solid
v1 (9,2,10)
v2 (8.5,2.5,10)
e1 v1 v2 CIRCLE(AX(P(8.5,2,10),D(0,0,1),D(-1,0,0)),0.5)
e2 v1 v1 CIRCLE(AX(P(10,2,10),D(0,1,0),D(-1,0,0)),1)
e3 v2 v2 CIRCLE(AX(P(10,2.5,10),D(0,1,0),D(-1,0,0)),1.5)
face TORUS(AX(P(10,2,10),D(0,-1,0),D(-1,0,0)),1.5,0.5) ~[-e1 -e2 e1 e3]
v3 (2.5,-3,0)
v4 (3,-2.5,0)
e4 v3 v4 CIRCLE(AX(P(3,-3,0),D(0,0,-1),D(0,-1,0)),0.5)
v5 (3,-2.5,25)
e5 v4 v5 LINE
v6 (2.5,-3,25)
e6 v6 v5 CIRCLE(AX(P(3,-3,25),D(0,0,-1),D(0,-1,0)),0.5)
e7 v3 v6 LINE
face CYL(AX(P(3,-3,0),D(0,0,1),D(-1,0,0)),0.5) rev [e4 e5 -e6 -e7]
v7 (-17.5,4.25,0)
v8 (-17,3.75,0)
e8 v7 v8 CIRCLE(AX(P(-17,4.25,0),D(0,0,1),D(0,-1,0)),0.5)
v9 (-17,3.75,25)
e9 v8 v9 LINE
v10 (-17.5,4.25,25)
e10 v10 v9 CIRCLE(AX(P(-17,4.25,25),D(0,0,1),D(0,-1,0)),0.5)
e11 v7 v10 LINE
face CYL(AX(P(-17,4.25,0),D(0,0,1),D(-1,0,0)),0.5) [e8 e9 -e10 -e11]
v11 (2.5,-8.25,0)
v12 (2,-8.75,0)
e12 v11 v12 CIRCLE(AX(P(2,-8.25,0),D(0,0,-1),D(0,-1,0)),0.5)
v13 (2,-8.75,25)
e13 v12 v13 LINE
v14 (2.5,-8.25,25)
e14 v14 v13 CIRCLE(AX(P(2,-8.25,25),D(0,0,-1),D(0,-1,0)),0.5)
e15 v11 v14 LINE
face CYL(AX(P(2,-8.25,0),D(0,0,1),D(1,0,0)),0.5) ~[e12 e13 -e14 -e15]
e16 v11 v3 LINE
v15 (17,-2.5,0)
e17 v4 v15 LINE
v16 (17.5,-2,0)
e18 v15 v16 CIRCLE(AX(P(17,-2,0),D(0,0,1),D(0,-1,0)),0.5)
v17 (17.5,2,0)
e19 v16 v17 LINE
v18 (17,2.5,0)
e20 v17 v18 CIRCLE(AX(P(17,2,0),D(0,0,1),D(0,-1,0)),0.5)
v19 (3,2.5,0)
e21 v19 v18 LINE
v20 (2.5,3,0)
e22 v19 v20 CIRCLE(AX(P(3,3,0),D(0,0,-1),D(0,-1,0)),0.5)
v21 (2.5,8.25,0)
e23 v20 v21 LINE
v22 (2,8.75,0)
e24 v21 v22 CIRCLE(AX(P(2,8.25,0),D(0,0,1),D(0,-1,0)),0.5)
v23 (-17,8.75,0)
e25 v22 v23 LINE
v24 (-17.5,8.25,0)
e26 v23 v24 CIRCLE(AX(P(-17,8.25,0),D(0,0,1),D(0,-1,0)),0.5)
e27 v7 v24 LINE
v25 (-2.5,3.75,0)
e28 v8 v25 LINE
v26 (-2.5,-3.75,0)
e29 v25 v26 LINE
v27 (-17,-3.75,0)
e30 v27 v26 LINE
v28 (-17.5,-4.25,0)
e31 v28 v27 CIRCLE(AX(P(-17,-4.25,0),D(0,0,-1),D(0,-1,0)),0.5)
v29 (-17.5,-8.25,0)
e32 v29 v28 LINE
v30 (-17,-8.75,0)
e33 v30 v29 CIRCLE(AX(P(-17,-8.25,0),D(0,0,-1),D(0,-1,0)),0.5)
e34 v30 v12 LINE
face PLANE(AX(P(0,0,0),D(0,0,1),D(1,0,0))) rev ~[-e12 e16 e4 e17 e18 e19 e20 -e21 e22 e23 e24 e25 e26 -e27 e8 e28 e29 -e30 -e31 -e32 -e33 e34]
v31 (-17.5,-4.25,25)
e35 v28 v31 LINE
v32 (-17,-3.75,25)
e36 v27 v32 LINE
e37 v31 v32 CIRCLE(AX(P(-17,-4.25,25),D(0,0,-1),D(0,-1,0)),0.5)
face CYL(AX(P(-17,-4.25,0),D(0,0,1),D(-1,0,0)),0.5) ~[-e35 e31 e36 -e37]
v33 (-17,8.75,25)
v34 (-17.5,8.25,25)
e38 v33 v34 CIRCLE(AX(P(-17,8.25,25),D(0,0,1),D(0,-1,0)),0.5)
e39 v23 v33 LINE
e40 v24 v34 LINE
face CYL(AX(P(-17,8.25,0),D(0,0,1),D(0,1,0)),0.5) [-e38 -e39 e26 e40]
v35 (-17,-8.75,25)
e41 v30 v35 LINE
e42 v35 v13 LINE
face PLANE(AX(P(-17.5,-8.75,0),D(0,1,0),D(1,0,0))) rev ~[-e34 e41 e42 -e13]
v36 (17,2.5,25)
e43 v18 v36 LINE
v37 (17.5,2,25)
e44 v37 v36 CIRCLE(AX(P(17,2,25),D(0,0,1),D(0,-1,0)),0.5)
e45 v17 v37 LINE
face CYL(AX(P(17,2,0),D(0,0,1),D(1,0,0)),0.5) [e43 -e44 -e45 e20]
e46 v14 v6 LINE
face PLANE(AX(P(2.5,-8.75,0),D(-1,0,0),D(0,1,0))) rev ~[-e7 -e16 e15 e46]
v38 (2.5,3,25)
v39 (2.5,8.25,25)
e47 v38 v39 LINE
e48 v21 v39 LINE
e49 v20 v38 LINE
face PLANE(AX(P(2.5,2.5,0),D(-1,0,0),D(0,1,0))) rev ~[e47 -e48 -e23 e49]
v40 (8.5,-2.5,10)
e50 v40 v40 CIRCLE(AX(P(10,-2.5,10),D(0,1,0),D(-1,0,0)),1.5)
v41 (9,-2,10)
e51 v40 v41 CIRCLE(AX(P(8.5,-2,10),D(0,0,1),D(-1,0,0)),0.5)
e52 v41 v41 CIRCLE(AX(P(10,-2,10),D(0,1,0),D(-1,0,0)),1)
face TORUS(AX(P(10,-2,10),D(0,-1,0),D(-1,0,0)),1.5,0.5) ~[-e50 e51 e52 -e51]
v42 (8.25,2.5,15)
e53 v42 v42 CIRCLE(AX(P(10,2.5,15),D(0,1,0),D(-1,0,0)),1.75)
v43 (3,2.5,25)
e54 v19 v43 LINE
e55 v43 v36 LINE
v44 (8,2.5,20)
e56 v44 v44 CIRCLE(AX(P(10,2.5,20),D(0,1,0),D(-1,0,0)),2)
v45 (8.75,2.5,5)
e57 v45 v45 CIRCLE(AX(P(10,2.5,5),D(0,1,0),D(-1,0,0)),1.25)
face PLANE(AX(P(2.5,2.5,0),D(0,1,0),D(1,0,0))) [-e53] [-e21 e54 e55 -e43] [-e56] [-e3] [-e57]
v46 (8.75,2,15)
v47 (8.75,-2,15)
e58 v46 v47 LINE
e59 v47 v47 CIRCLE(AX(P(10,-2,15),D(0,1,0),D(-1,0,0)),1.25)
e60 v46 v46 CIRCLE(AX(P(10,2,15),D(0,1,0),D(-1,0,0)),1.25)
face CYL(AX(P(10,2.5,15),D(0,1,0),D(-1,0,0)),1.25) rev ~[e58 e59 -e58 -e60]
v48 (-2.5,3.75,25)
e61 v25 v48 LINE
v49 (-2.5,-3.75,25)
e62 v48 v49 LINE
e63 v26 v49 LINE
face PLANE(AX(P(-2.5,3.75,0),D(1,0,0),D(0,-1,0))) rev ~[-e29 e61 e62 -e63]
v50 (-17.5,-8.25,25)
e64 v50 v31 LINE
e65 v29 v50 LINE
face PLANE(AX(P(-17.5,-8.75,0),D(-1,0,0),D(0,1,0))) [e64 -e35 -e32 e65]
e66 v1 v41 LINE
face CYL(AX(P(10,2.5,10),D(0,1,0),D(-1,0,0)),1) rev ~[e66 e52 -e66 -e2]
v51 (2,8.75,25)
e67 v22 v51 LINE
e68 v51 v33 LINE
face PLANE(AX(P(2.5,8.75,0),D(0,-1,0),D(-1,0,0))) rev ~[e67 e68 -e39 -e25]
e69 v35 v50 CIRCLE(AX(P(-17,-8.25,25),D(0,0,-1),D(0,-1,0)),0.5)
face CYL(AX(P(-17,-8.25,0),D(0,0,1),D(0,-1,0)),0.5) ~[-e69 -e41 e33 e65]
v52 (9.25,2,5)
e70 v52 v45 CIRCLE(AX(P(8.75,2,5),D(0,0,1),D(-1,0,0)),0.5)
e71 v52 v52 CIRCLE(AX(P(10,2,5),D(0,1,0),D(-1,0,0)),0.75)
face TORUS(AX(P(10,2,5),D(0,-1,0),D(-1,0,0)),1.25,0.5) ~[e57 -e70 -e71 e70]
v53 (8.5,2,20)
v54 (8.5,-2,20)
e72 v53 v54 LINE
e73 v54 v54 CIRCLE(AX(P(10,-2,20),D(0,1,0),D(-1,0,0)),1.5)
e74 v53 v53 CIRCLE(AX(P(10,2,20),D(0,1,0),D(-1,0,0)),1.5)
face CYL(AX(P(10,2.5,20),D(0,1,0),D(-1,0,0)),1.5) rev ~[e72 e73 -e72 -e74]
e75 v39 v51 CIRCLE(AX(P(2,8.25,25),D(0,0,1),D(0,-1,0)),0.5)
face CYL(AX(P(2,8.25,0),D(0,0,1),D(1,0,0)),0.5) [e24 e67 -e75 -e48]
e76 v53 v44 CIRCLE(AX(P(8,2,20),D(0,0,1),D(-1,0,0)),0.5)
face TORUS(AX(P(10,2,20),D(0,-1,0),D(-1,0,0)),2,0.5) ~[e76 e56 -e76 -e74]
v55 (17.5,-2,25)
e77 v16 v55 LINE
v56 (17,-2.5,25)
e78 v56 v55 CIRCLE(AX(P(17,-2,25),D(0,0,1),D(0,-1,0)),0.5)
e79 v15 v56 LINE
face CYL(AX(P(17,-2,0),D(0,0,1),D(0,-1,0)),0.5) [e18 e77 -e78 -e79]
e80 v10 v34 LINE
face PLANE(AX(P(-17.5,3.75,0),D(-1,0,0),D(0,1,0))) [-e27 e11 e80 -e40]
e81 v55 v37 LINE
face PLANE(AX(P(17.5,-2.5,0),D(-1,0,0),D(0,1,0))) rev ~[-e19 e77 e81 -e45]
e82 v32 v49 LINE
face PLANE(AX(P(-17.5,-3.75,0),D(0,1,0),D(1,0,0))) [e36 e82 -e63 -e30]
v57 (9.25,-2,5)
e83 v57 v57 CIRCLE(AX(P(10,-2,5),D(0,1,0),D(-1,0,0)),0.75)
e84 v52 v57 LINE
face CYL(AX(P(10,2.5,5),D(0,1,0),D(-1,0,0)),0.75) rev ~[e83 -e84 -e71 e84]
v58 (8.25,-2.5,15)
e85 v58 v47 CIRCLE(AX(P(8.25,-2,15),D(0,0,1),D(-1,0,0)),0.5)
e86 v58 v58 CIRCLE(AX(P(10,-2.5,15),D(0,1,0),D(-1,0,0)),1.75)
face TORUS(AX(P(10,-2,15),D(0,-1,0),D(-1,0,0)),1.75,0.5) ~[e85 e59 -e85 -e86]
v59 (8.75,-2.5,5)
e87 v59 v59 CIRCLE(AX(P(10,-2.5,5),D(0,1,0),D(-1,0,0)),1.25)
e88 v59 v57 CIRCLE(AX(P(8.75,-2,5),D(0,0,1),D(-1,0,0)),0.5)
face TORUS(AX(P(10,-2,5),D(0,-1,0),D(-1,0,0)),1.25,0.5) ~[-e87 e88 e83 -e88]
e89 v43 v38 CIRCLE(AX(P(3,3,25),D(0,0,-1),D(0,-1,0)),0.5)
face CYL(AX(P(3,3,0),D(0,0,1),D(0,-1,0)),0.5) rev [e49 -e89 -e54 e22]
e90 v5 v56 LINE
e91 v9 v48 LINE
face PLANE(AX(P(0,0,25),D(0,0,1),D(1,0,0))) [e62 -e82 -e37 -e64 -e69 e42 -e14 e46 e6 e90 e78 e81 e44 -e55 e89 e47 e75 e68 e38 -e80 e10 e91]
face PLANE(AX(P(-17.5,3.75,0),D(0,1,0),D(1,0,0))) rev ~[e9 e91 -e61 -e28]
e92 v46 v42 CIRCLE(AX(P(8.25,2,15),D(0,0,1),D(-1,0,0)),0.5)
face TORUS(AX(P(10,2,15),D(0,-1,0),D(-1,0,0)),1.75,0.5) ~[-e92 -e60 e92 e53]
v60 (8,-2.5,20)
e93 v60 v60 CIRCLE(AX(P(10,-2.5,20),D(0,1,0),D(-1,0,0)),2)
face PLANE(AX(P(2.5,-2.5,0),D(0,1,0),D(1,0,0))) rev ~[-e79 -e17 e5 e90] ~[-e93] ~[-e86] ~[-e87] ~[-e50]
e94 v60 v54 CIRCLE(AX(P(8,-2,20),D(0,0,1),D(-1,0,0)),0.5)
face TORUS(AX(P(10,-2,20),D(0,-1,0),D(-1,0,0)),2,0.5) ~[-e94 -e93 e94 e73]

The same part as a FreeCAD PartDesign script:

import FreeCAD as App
import Part
import Sketcher


def edges_at(feature, points):
    """Names of the edges that pass closest to the given points."""
    edges = feature.Shape.Edges
    near = lambda p: min(range(len(edges)), key=lambda i: edges[i].distToShape(Part.Vertex(*p))[0])
    return sorted({f"Edge{near(p) + 1}" for p in points})

doc = App.newDocument("Part")
body = doc.addObject("PartDesign::Body", "Body")

# Sketch on XY plane
sketch1 = doc.addObject("Sketcher::SketchObject", "Sketch")
body.addObject(sketch1)
sketch1.AttachmentSupport = (doc.XY_Plane, [""])
sketch1.MapMode = "FlatFace"
sketch1.addGeometry(Part.LineSegment(App.Vector(2, -9, 0), App.Vector(2, -2, 0)), False)
sketch1.addGeometry(Part.LineSegment(App.Vector(2, -2, 0), App.Vector(18, -2, 0)), False)
sketch1.addGeometry(Part.LineSegment(App.Vector(18, -2, 0), App.Vector(18, 2, 0)), False)
sketch1.addGeometry(Part.LineSegment(App.Vector(18, 2, 0), App.Vector(2, 2, 0)), False)
sketch1.addGeometry(Part.LineSegment(App.Vector(2, 2, 0), App.Vector(2, 9, 0)), False)
sketch1.addGeometry(Part.LineSegment(App.Vector(2, 9, 0), App.Vector(-18, 9, 0)), False)
sketch1.addGeometry(Part.LineSegment(App.Vector(-18, 9, 0), App.Vector(-18, 4, 0)), False)
sketch1.addGeometry(Part.LineSegment(App.Vector(-18, 4, 0), App.Vector(-2, 4, 0)), False)
sketch1.addGeometry(Part.LineSegment(App.Vector(-2, 4, 0), App.Vector(-2, -4, 0)), False)
sketch1.addGeometry(Part.LineSegment(App.Vector(-2, -4, 0), App.Vector(-18, -4, 0)), False)
sketch1.addGeometry(Part.LineSegment(App.Vector(-18, -4, 0), App.Vector(-18, -9, 0)), False)
sketch1.addGeometry(Part.LineSegment(App.Vector(-18, -9, 0), App.Vector(2, -9, 0)), False)
sketch1.addConstraint(Sketcher.Constraint("Coincident", 0, 2, 1, 1))
sketch1.addConstraint(Sketcher.Constraint("Coincident", 1, 2, 2, 1))
sketch1.addConstraint(Sketcher.Constraint("Coincident", 2, 2, 3, 1))
sketch1.addConstraint(Sketcher.Constraint("Coincident", 3, 2, 4, 1))
sketch1.addConstraint(Sketcher.Constraint("Coincident", 4, 2, 5, 1))
sketch1.addConstraint(Sketcher.Constraint("Coincident", 5, 2, 6, 1))
sketch1.addConstraint(Sketcher.Constraint("Coincident", 6, 2, 7, 1))
sketch1.addConstraint(Sketcher.Constraint("Coincident", 7, 2, 8, 1))
sketch1.addConstraint(Sketcher.Constraint("Coincident", 8, 2, 9, 1))
sketch1.addConstraint(Sketcher.Constraint("Coincident", 9, 2, 10, 1))
sketch1.addConstraint(Sketcher.Constraint("Coincident", 10, 2, 11, 1))
sketch1.addConstraint(Sketcher.Constraint("Coincident", 11, 2, 0, 1))
sketch1.addConstraint(Sketcher.Constraint("Vertical", 0))
sketch1.addConstraint(Sketcher.Constraint("Horizontal", 1))
sketch1.addConstraint(Sketcher.Constraint("Vertical", 2))
sketch1.addConstraint(Sketcher.Constraint("Horizontal", 3))
sketch1.addConstraint(Sketcher.Constraint("Vertical", 4))
sketch1.addConstraint(Sketcher.Constraint("Horizontal", 5))
sketch1.addConstraint(Sketcher.Constraint("Vertical", 6))
sketch1.addConstraint(Sketcher.Constraint("Horizontal", 7))
sketch1.addConstraint(Sketcher.Constraint("Vertical", 8))
sketch1.addConstraint(Sketcher.Constraint("Horizontal", 9))
sketch1.addConstraint(Sketcher.Constraint("Vertical", 10))
sketch1.addConstraint(Sketcher.Constraint("Horizontal", 11))
sketch1.addConstraint(Sketcher.Constraint("Symmetric", 0, 2, 3, 2, -1))
sketch1.addConstraint(Sketcher.Constraint("Symmetric", 6, 2, 9, 2, -1))
sketch1.addConstraint(Sketcher.Constraint("Equal", 3, 7))
sketch1.addConstraint(Sketcher.Constraint("Equal", 0, 4))
sketch1.addConstraint(Sketcher.Constraint("Equal", 2, 6))
sketch1.addConstraint(Sketcher.Constraint("DistanceX", 1, 1, 1, 2, 15.0))
sketch1.addConstraint(Sketcher.Constraint("DistanceX", 5, 2, 5, 1, 20.0))
sketch1.addConstraint(Sketcher.Constraint("DistanceY", 2, 1, 2, 2, 5.0))
sketch1.addConstraint(Sketcher.Constraint("DistanceY", 8, 2, 8, 1, 7.5))
sketch1.addConstraint(Sketcher.Constraint("DistanceX", -1, 1, 0, 2, 2.5))
pad1 = doc.addObject("PartDesign::Pad", "Pad")
body.addObject(pad1)
pad1.Profile = sketch1
pad1.Length = 25

# Sketch on XZ plane
sketch2 = doc.addObject("Sketcher::SketchObject", "Sketch001")
body.addObject(sketch2)
sketch2.AttachmentSupport = (doc.XZ_Plane, [""])
sketch2.MapMode = "FlatFace"
sketch2.AttachmentOffset = App.Placement(App.Vector(0, 0, -2.5), App.Rotation())
sketch2.addGeometry(Part.Circle(App.Vector(10, 20, 0), App.Vector(0, 0, 1), 1.5), False)
sketch2.addGeometry(Part.Circle(App.Vector(10, 15, 0), App.Vector(0, 0, 1), 1.2), False)
sketch2.addGeometry(Part.Circle(App.Vector(10, 10, 0), App.Vector(0, 0, 1), 1), False)
sketch2.addGeometry(Part.Circle(App.Vector(10, 5, 0), App.Vector(0, 0, 1), 0.8), False)
sketch2.addConstraint(Sketcher.Constraint("Vertical", 0, 3, 1, 3))
sketch2.addConstraint(Sketcher.Constraint("Vertical", 1, 3, 2, 3))
sketch2.addConstraint(Sketcher.Constraint("Vertical", 2, 3, 3, 3))
sketch2.addConstraint(Sketcher.Constraint("Diameter", 0, 3.0))
sketch2.addConstraint(Sketcher.Constraint("Diameter", 2, 2.0))
sketch2.addConstraint(Sketcher.Constraint("Diameter", 1, 2.5))
sketch2.addConstraint(Sketcher.Constraint("Diameter", 3, 1.5))
sketch2.addConstraint(Sketcher.Constraint("DistanceX", -1, 1, 0, 3, 10.0))
sketch2.addConstraint(Sketcher.Constraint("DistanceY", -1, 1, 0, 3, 20.0))
sketch2.addConstraint(Sketcher.Constraint("DistanceY", -1, 1, 1, 3, 15.0))
sketch2.addConstraint(Sketcher.Constraint("DistanceY", -1, 1, 2, 3, 10.0))
sketch2.addConstraint(Sketcher.Constraint("DistanceY", -1, 1, 3, 3, 5.0))
pocket1 = doc.addObject("PartDesign::Pocket", "Pocket")
body.addObject(pocket1)
pocket1.Profile = sketch2
pocket1.Length = 25
pocket1.Reversed = True
doc.recompute()

fillet = doc.addObject("PartDesign::Fillet", "Fillet")
body.addObject(fillet)
fillet.Base = (pocket1, edges_at(pocket1, [
    (2.5, 8.75, 12.5),
    (2.5, -8.75, 12.5),
    (17.5, 2.5, 12.5),
    (17.5, -2.5, 12.5),
    (-17.5, 8.75, 12.5),
    (-17.5, -8.75, 12.5),
    (-17.5, -3.75, 12.5),
    (-17.5, 3.75, 12.5),
    (11.25, 2.5, 15),
    (8.75, 0, 15),
    (11.25, -2.5, 15),
    (11, 2.5, 10),
    (9, 0, 10),
    (11, -2.5, 10),
    (10.75, 2.5, 5),
    (9.25, 0, 5),
    (10.75, -2.5, 5),
    (11.5, 2.5, 20),
    (8.5, 0, 20),
    (11.5, -2.5, 20),
    (2.5, 2.5, 12.5),
    (2.5, -2.5, 12.5),
]))
fillet.Radius = 0.5

doc.recompute()
